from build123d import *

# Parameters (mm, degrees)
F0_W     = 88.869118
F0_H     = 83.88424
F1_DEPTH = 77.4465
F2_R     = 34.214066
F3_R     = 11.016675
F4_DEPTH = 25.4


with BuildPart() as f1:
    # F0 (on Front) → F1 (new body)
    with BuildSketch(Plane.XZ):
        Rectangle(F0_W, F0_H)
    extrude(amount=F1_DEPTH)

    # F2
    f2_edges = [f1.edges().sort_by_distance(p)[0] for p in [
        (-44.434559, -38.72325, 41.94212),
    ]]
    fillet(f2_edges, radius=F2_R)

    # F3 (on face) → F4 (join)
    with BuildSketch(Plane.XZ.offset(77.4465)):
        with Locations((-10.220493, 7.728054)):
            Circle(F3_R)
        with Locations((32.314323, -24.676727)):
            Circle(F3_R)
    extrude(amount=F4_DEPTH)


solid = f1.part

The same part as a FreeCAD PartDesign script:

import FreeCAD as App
import Part
import Sketcher

V = App.Vector
Q = App.Units.Quantity


def edges_at(feature, points):
    """Names of the edges that pass closest to the given points."""
    edges = feature.Shape.Edges
    near = lambda p: min(range(len(edges)), key=lambda i: edges[i].distToShape(Part.Vertex(*p))[0])
    return sorted({f"Edge{near(p) + 1}" for p in points})


def add_polygon(sketch, points):
    """Adds a closed chain of lines whose ends are joined by coincident constraints."""
    first, n = sketch.GeometryCount, len(points)
    for a, b in zip(points, points[1:] + points[:1]):
        sketch.addGeometry(Part.LineSegment(App.Vector(*a, 0), App.Vector(*b, 0)), False)
    for i in range(n):
        sketch.addConstraint(Sketcher.Constraint("Coincident", first + i, 2, first + (i + 1) % n, 1))

doc = App.newDocument("Part")
body = doc.addObject("PartDesign::Body", "Body")

# Sketch on XZ plane
sketch1 = body.newObject("Sketcher::SketchObject", "Sketch")
sketch1.AttachmentSupport = (doc.getObject("XZ_Plane"), [""])
sketch1.MapMode = "FlatFace"
add_polygon(sketch1, [(-44, 42), (-44, -42), (44, -42), (44, 42)])  # lines 0-3
sketch1.addConstraint([
    Sketcher.Constraint("Vertical", 0),
    Sketcher.Constraint("Horizontal", 1),
    Sketcher.Constraint("Vertical", 2),
    Sketcher.Constraint("Horizontal", 3),
    Sketcher.Constraint("Symmetric", 0, 2, 2, 2, -1, 1),
    Sketcher.Constraint("DistanceX", 1, 1, 1, 2, Q("88.869118 mm")),
    Sketcher.Constraint("DistanceY", 0, 2, 0, 1, Q("83.88424 mm")),
])
pad1 = body.newObject("PartDesign::Pad", "Pad")
pad1.Profile = sketch1
pad1.Length = 77.4465
doc.recompute()

fillet = body.newObject("PartDesign::Fillet", "Fillet")
fillet.Base = (pad1, edges_at(pad1, [(-44.435, -38.723, 41.942)]))
fillet.Radius = 34.214066

# Sketch on XZ plane
sketch2 = body.newObject("Sketcher::SketchObject", "Sketch001")
sketch2.AttachmentSupport = (doc.getObject("XZ_Plane"), [""])
sketch2.MapMode = "FlatFace"
sketch2.AttachmentOffset = App.Placement(V(0, 0, 77.4465), App.Rotation())
sketch2.addGeometry([
    Part.Circle(V(-10, 8, 0), V(0, 0, 1), 11),
    Part.Circle(V(32, -25, 0), V(0, 0, 1), 11),
], False)
sketch2.addConstraint([
    Sketcher.Constraint("Equal", 0, 1),
    Sketcher.Constraint("Diameter", 0, Q("22.03335 mm")),
    Sketcher.Constraint("DistanceY", 1, 3, 0, 3, Q("32.404781 mm")),
    Sketcher.Constraint("DistanceX", 0, 3, -1, 1, Q("10.220493 mm")),
    Sketcher.Constraint("DistanceY", -1, 1, 0, 3, Q("7.728054 mm")),
    Sketcher.Constraint("DistanceX", -1, 1, 1, 3, Q("32.314323 mm")),
])
pad2 = body.newObject("PartDesign::Pad", "Pad001")
pad2.Profile = sketch2
pad2.Length = Q("1 in")

doc.recompute()
